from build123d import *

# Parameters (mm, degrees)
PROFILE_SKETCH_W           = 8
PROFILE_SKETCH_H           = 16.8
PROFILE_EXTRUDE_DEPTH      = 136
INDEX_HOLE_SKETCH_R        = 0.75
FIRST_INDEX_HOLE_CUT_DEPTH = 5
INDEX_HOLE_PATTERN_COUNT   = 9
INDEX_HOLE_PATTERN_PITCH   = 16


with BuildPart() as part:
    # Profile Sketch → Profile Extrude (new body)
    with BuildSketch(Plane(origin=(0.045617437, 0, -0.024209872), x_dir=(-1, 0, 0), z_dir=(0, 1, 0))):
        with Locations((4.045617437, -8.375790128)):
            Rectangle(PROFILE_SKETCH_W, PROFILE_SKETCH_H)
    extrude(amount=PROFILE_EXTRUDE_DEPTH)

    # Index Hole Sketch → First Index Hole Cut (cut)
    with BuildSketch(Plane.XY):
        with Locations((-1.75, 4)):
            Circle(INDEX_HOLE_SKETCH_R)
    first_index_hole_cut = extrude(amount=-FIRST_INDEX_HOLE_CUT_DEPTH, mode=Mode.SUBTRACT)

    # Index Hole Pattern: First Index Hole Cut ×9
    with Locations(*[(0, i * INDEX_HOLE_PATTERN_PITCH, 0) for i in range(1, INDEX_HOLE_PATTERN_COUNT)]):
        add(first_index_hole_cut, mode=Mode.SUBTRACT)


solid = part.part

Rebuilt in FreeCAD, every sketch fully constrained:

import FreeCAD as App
import Part
import Sketcher
from FreeCAD import Vector
Q = App.Units.Quantity

doc = App.newDocument("Part")
body = doc.addObject("PartDesign::Body", "Body")

sketch1 = doc.addObject("Sketcher::SketchObject", "Sketch")
body.addObject(sketch1)
sketch1.AttachmentSupport = (doc.XZ_Plane, [""])
sketch1.MapMode = "FlatFace"
sketch1.addGeometry([
    Part.LineSegment(Vector(0, 0, 0), Vector(0, -17, 0)),
    Part.LineSegment(Vector(0, -17, 0), Vector(-8, -17, 0)),
    Part.LineSegment(Vector(-8, -17, 0), Vector(-8, 0, 0)),
    Part.LineSegment(Vector(-8, 0, 0), Vector(0, 0, 0)),
], False)
sketch1.addConstraint([
    Sketcher.Constraint("Coincident", 0, 2, 1, 1),
    Sketcher.Constraint("Coincident", 1, 2, 2, 1),
    Sketcher.Constraint("Coincident", 2, 2, 3, 1),
    Sketcher.Constraint("Coincident", 3, 2, 0, 1),
    Sketcher.Constraint("Vertical", 0),
    Sketcher.Constraint("Horizontal", 1),
    Sketcher.Constraint("Vertical", 2),
    Sketcher.Constraint("Horizontal", 3),
    Sketcher.Constraint("Coincident", 3, 2, -1, 1),
    Sketcher.Constraint("DistanceX", 1, 2, 1, 1, Q("8 mm")),
    Sketcher.Constraint("DistanceY", 0, 2, 0, 1, Q("16.8 mm")),
])
pad1 = doc.addObject("PartDesign::Pad", "Pad")
body.addObject(pad1)
pad1.Profile = sketch1
pad1.Length = 136
pad1.Reversed = True

sketch2 = doc.addObject("Sketcher::SketchObject", "Sketch001")
body.addObject(sketch2)
sketch2.AttachmentSupport = (doc.XY_Plane, [""])
sketch2.MapMode = "FlatFace"
sketch2.addGeometry(Part.Circle(Vector(-1.8, 4, 0), Vector(0, 0, 1), 0.8), False)
sketch2.addConstraint([
    Sketcher.Constraint("Diameter", 0, Q("1.5 mm")),
    Sketcher.Constraint("DistanceY", -1, 1, 0, 3, Q("4 mm")),
    Sketcher.Constraint("DistanceX", 0, 3, -1, 1, Q("1.75 mm")),
])
pocket1 = doc.addObject("PartDesign::Pocket", "Pocket")
body.addObject(pocket1)
pocket1.Profile = sketch2
pocket1.Length = 5
doc.recompute()

linearpattern = doc.addObject("PartDesign::LinearPattern", "LinearPattern")
body.addObject(linearpattern)
linearpattern.Originals = [pocket1]
linearpattern.Direction = (doc.Y_Axis, [""])
linearpattern.Mode = "offset"
linearpattern.Offset = 16
linearpattern.Occurrences = 9
body.Tip = linearpattern

doc.recompute()
